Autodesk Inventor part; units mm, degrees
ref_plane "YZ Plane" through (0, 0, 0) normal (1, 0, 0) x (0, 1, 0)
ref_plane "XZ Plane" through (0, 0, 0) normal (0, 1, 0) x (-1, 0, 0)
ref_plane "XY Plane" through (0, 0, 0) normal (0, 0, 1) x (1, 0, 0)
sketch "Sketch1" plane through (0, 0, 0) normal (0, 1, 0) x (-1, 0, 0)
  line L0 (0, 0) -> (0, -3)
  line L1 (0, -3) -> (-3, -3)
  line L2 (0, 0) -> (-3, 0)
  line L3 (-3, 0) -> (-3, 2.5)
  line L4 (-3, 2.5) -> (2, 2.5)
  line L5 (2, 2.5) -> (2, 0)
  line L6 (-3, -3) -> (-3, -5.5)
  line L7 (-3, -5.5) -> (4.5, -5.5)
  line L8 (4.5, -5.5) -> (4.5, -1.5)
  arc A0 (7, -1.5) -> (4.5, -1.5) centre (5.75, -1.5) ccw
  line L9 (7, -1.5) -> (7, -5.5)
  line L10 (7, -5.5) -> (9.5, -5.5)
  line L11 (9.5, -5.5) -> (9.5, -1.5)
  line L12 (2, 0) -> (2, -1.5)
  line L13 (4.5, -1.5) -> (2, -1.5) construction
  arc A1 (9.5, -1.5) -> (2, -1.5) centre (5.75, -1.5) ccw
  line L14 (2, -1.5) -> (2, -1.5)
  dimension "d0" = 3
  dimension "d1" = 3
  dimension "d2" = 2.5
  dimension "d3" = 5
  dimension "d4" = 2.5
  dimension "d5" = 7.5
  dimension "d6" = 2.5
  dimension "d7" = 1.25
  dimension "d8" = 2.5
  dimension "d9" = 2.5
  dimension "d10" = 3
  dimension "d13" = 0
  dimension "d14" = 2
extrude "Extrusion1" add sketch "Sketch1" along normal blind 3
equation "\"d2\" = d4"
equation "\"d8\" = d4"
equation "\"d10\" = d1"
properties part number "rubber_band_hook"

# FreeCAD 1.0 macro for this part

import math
import FreeCAD as App
import Part
import Sketcher

V = App.Vector
Q = App.Units.Quantity

doc = App.newDocument("Part")
body = doc.addObject("PartDesign::Body", "Body")

sketch1 = doc.addObject("Sketcher::SketchObject", "Sketch")
body.addObject(sketch1)
sketch1.AttachmentSupport = (doc.XZ_Plane, [""])
sketch1.MapMode = "FlatFace"
sketch1.addGeometry([
    Part.LineSegment(V(3, 0, 0), V(0, 0, 0)),
    Part.LineSegment(V(0, 0, 0), V(0, -3, 0)),
    Part.LineSegment(V(0, -3, 0), V(3, -3, 0)),
    Part.LineSegment(V(3, -3, 0), V(3, -5.5, 0)),
    Part.LineSegment(V(3, -5.5, 0), V(-4.5, -5.5, 0)),
    Part.LineSegment(V(-4.5, -5.5, 0), V(-4.5, -1.5, 0)),
    Part.ArcOfCircle(Part.Circle(V(-5.75, -1.5, 0), V(0, 0, 1), 1.25), math.radians(0), math.radians(180)),
    Part.LineSegment(V(-7, -1.5, 0), V(-7, -5.5, 0)),
    Part.LineSegment(V(-7, -5.5, 0), V(-9.5, -5.5, 0)),
    Part.LineSegment(V(-9.5, -5.5, 0), V(-9.5, -1.5, 0)),
    Part.ArcOfCircle(Part.Circle(V(-5.75, -1.5, 0), V(0, 0, 1), 3.75), math.radians(0), math.radians(180)),
    Part.LineSegment(V(-2, -1.5, 0), V(-2, 2.5, 0)),
    Part.LineSegment(V(-2, 2.5, 0), V(3, 2.5, 0)),
    Part.LineSegment(V(3, 2.5, 0), V(3, 0, 0)),
], False)
sketch1.addConstraint([
    Sketcher.Constraint("Coincident", 0, 2, 1, 1),
    Sketcher.Constraint("Coincident", 1, 2, 2, 1),
    Sketcher.Constraint("Coincident", 2, 2, 3, 1),
    Sketcher.Constraint("Coincident", 3, 2, 4, 1),
    Sketcher.Constraint("Coincident", 4, 2, 5, 1),
    Sketcher.Constraint("Tangent", 5, 2, 6, 1),
    Sketcher.Constraint("Tangent", 6, 2, 7, 1),
    Sketcher.Constraint("Coincident", 7, 2, 8, 1),
    Sketcher.Constraint("Coincident", 8, 2, 9, 1),
    Sketcher.Constraint("Tangent", 9, 2, 10, 2),
    Sketcher.Constraint("Tangent", 10, 1, 11, 1),
    Sketcher.Constraint("Coincident", 11, 2, 12, 1),
    Sketcher.Constraint("Coincident", 12, 2, 13, 1),
    Sketcher.Constraint("Coincident", 13, 2, 0, 1),
    Sketcher.Constraint("Horizontal", 0),
    Sketcher.Constraint("Vertical", 1),
    Sketcher.Constraint("Horizontal", 2),
    Sketcher.Constraint("Vertical", 3),
    Sketcher.Constraint("Horizontal", 4),
    Sketcher.Constraint("Vertical", 5),
    Sketcher.Constraint("Vertical", 7),
    Sketcher.Constraint("Horizontal", 8),
    Sketcher.Constraint("Vertical", 9),
    Sketcher.Constraint("Vertical", 11),
    Sketcher.Constraint("Horizontal", 12),
    Sketcher.Constraint("Vertical", 13),
    Sketcher.Constraint("Coincident", 0, 2, -1, 1),
    Sketcher.Constraint("Coincident", 10, 3, 6, 3),
    Sketcher.Constraint("Horizontal", 4, 2, 7, 2),
    Sketcher.Constraint("Vertical", 3, 2, 12, 2),
    Sketcher.Constraint("Equal", 2, 1),
    Sketcher.Constraint("Equal", 8, 3),
    Sketcher.Constraint("Equal", 9, 11),
    Sketcher.Constraint("Equal", 3, 13),
    Sketcher.Constraint("DistanceX", 0, 2, 0, 1, Q("3 mm")),
    Sketcher.Constraint("DistanceX", 12, 1, 12, 2, Q("5 mm")),
    Sketcher.Constraint("Radius", 6, Q("1.25 mm")),
    Sketcher.Constraint("Radius", 10, Q("3.75 mm")),
])
pad1 = doc.addObject("PartDesign::Pad", "Pad")
body.addObject(pad1)
pad1.Profile = sketch1
pad1.Length = 3
pad1.Reversed = True

doc.recompute()
